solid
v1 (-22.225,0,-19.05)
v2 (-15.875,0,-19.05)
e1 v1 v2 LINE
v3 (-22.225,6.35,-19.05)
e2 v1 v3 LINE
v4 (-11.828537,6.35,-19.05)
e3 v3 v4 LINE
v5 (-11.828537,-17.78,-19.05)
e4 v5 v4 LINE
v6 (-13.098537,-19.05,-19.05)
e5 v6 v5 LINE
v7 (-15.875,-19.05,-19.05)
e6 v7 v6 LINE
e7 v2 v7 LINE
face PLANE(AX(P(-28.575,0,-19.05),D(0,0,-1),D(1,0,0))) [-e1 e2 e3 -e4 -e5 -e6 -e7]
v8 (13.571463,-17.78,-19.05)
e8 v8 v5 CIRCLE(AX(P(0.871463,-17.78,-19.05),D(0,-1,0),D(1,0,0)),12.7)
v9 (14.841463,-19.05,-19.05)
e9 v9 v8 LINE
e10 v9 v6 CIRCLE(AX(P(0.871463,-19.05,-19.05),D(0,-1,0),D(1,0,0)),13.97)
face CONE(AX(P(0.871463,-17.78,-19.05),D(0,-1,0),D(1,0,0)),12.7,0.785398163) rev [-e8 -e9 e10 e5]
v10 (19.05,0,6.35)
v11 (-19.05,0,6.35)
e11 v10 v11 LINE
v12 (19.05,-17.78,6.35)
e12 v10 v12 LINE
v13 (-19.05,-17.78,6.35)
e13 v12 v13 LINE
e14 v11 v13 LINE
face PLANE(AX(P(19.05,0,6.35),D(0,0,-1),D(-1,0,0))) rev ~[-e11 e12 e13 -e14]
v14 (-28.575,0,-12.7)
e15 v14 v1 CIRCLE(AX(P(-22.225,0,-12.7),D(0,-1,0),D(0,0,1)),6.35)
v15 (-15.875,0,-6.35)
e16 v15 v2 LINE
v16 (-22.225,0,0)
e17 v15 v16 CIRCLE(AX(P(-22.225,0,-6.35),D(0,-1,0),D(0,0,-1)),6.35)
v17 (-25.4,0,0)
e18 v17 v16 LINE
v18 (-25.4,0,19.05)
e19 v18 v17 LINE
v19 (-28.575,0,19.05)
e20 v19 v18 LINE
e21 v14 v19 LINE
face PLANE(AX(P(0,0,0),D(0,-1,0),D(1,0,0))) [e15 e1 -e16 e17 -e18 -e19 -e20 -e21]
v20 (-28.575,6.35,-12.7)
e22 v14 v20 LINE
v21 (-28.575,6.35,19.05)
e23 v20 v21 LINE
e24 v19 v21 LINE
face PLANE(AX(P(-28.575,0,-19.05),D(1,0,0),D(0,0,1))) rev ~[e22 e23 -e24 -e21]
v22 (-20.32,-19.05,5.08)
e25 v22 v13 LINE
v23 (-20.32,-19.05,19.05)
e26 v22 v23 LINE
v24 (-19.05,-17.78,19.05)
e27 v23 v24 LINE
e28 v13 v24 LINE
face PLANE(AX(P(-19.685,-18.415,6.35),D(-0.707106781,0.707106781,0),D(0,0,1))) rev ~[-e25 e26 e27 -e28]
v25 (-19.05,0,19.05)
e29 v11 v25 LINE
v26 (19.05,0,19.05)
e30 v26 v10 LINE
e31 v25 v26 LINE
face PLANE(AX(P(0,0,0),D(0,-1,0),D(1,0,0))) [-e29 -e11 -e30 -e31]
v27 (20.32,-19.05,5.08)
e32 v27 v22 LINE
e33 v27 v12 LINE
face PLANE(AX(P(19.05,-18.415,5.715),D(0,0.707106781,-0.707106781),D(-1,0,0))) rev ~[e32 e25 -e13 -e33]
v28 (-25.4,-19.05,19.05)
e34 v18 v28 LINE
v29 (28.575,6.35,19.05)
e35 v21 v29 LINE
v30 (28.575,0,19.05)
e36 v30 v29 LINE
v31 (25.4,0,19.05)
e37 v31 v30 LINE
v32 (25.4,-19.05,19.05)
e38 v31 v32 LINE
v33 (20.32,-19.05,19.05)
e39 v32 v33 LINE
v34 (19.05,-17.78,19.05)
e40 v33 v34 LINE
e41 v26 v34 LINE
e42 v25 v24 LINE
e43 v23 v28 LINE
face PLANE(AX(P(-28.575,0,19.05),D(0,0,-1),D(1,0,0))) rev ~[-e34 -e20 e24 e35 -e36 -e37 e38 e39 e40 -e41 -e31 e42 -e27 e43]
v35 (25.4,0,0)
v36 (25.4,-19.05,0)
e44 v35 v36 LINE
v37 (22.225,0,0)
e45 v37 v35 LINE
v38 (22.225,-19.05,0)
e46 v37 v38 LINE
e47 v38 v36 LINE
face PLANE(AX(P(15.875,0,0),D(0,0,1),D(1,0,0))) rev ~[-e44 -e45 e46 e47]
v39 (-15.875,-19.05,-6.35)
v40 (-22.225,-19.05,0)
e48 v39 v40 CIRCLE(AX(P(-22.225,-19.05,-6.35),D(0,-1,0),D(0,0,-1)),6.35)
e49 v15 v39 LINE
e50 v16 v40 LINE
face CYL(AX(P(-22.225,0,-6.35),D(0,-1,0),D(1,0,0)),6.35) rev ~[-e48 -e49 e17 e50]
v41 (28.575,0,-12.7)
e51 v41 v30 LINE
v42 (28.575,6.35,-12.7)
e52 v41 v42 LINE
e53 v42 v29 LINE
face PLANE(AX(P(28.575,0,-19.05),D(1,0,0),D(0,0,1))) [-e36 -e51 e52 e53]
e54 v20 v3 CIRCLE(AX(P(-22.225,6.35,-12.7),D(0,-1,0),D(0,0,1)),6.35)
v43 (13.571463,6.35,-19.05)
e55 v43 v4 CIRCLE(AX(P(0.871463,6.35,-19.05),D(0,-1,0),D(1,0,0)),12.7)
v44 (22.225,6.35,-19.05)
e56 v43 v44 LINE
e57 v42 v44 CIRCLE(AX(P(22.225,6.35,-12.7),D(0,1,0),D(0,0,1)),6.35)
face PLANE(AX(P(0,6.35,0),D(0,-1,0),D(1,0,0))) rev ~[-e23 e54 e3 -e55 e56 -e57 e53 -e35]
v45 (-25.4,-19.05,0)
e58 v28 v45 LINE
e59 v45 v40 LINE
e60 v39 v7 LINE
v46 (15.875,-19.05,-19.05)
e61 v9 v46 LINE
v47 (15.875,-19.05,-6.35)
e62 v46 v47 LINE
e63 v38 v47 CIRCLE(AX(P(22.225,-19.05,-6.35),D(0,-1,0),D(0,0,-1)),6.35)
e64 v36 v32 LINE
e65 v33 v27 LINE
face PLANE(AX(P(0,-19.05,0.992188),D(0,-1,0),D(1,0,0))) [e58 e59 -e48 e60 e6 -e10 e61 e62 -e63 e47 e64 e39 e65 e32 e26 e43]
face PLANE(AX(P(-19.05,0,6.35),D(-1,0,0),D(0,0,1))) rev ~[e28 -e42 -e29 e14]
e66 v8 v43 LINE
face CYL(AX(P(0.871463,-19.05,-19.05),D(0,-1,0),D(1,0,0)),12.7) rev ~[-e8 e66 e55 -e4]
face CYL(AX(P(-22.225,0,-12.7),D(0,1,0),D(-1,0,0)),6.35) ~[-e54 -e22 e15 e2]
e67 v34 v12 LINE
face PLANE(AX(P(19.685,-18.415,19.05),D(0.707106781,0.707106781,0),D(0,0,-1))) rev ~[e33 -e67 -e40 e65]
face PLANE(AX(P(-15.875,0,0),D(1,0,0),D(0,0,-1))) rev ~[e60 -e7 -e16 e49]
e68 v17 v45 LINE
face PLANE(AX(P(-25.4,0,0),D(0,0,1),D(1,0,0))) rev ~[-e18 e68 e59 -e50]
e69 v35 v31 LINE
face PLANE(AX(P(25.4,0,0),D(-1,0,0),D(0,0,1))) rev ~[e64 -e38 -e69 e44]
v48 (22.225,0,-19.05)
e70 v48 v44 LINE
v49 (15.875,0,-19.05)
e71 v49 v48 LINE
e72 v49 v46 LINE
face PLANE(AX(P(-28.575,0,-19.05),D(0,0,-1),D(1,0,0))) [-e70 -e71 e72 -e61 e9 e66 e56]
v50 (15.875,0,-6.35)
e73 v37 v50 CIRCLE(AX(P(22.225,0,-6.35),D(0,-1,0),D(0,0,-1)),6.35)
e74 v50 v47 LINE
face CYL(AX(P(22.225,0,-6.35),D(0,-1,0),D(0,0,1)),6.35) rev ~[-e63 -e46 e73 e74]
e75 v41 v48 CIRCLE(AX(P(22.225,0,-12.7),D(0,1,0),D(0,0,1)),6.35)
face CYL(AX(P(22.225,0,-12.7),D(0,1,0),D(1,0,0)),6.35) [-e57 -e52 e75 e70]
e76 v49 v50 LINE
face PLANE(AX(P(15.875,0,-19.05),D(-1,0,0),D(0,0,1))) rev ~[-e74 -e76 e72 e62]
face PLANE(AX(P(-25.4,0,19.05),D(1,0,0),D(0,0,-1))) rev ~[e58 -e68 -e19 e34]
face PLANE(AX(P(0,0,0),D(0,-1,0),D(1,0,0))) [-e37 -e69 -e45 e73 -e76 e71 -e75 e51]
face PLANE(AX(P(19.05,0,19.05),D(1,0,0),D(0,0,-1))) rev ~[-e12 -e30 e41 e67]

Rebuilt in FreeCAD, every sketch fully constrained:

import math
import FreeCAD as App
import Part
import Sketcher
Q = App.Units.Quantity


def edges_at(feature, points):
    """Names of the edges that pass closest to the given points."""
    edges = feature.Shape.Edges
    near = lambda p: min(range(len(edges)), key=lambda i: edges[i].distToShape(Part.Vertex(*p))[0])
    return sorted({f"Edge{near(p) + 1}" for p in points})

doc = App.newDocument("Part")
body = doc.addObject("PartDesign::Body", "Body")

sketch1 = body.newObject("Sketcher::SketchObject", "Sketch")
sketch1.AttachmentSupport = (doc.getObject("XZ_Plane"), [""])
sketch1.MapMode = "FlatFace"
sketch1.addGeometry([
    Part.LineSegment(App.Vector(-28.575, 19.05, 0), App.Vector(-28.575, -19.05, 0)),
    Part.LineSegment(App.Vector(-28.575, -19.05, 0), App.Vector(28.575, -19.05, 0)),
    Part.LineSegment(App.Vector(28.575, -19.05, 0), App.Vector(28.575, 19.05, 0)),
    Part.LineSegment(App.Vector(28.575, 19.05, 0), App.Vector(-28.575, 19.05, 0)),
], False)
sketch1.addConstraint([
    Sketcher.Constraint("Coincident", 0, 2, 1, 1),
    Sketcher.Constraint("Coincident", 1, 2, 2, 1),
    Sketcher.Constraint("Coincident", 2, 2, 3, 1),
    Sketcher.Constraint("Coincident", 3, 2, 0, 1),
    Sketcher.Constraint("Vertical", 0),
    Sketcher.Constraint("Horizontal", 1),
    Sketcher.Constraint("Vertical", 2),
    Sketcher.Constraint("Horizontal", 3),
    Sketcher.Constraint("Symmetric", 0, 2, 2, 2, -1, 1),
    Sketcher.Constraint("DistanceY", 0, 2, 0, 1, Q("1.5 in")),
    Sketcher.Constraint("DistanceX", 1, 1, 1, 2, Q("2.25 in")),
])
pad1 = body.newObject("PartDesign::Pad", "Pad")
pad1.Profile = sketch1
pad1.Length = Q("0.25 in")
pad1.Reversed = True

sketch2 = body.newObject("Sketcher::SketchObject", "Sketch001")
sketch2.AttachmentSupport = (doc.getObject("XZ_Plane"), [""])
sketch2.MapMode = "FlatFace"
sketch2.addGeometry([
    Part.LineSegment(App.Vector(-19.05, 19.05, 0), App.Vector(-25.4, 19.05, 0)),
    Part.LineSegment(App.Vector(-25.4, 19.05, 0), App.Vector(-25.4, 0, 0)),
    Part.LineSegment(App.Vector(-25.4, 0, 0), App.Vector(-15.875, 0, 0)),
    Part.LineSegment(App.Vector(-15.875, 0, 0), App.Vector(-15.875, -19.05, 0)),
    Part.LineSegment(App.Vector(-15.875, -19.05, 0), App.Vector(15.875, -19.05, 0)),
    Part.LineSegment(App.Vector(15.875, -19.05, 0), App.Vector(15.875, 0, 0)),
    Part.LineSegment(App.Vector(15.875, 0, 0), App.Vector(25.4, 0, 0)),
    Part.LineSegment(App.Vector(25.4, 0, 0), App.Vector(25.4, 19.05, 0)),
    Part.LineSegment(App.Vector(25.4, 19.05, 0), App.Vector(19.05, 19.05, 0)),
    Part.LineSegment(App.Vector(19.05, 19.05, 0), App.Vector(19.05, 6.35, 0)),
    Part.LineSegment(App.Vector(19.05, 6.35, 0), App.Vector(-19.05, 6.35, 0)),
    Part.LineSegment(App.Vector(-19.05, 6.35, 0), App.Vector(-19.05, 19.05, 0)),
], False)
sketch2.addConstraint([
    Sketcher.Constraint("Coincident", 0, 2, 1, 1),
    Sketcher.Constraint("Coincident", 1, 2, 2, 1),
    Sketcher.Constraint("Coincident", 2, 2, 3, 1),
    Sketcher.Constraint("Coincident", 3, 2, 4, 1),
    Sketcher.Constraint("Coincident", 4, 2, 5, 1),
    Sketcher.Constraint("Coincident", 5, 2, 6, 1),
    Sketcher.Constraint("Coincident", 6, 2, 7, 1),
    Sketcher.Constraint("Coincident", 7, 2, 8, 1),
    Sketcher.Constraint("Coincident", 8, 2, 9, 1),
    Sketcher.Constraint("Coincident", 9, 2, 10, 1),
    Sketcher.Constraint("Coincident", 10, 2, 11, 1),
    Sketcher.Constraint("Coincident", 11, 2, 0, 1),
    Sketcher.Constraint("Horizontal", 0),
    Sketcher.Constraint("Vertical", 1),
    Sketcher.Constraint("Horizontal", 2),
    Sketcher.Constraint("Vertical", 3),
    Sketcher.Constraint("Horizontal", 4),
    Sketcher.Constraint("Vertical", 5),
    Sketcher.Constraint("Horizontal", 6),
    Sketcher.Constraint("Vertical", 7),
    Sketcher.Constraint("Horizontal", 8),
    Sketcher.Constraint("Vertical", 9),
    Sketcher.Constraint("Horizontal", 10),
    Sketcher.Constraint("Vertical", 11),
    Sketcher.Constraint("Symmetric", 2, 2, 5, 2, -1, 1),
    Sketcher.Constraint("Symmetric", 1, 2, 6, 2, -2),
    Sketcher.Constraint("Symmetric", 8, 2, 11, 2, -2),
    Sketcher.Constraint("Equal", 1, 3),
    Sketcher.Constraint("DistanceX", 10, 2, 10, 1, Q("1.5 in")),
    Sketcher.Constraint("DistanceY", 9, 2, 9, 1, Q("0.5 in")),
    Sketcher.Constraint("DistanceX", 0, 2, -1, 1, Q("1 in")),
    Sketcher.Constraint("DistanceY", 4, 2, 9, 2, Q("1 in")),
    Sketcher.Constraint("DistanceX", 4, 1, 4, 2, Q("1.25 in")),
])
pad2 = body.newObject("PartDesign::Pad", "Pad001")
pad2.Profile = sketch2
pad2.Length = Q("0.75 in")

sketch3 = body.newObject("Sketcher::SketchObject", "Sketch002")
sketch3.AttachmentSupport = (doc.getObject("XZ_Plane"), [""])
sketch3.MapMode = "FlatFace"
sketch3.AttachmentOffset = App.Placement(App.Vector(0, 0, 0.75 * 25.4), App.Rotation())
sketch3.addGeometry([
    Part.LineSegment(App.Vector(-11.828537, -19.05, 0), App.Vector(13.571463, -19.05, 0)),
    Part.ArcOfCircle(Part.Circle(App.Vector(0.871463, -19.05, 0), App.Vector(0, 0, 1), 12.7), math.radians(0), math.radians(180)),
], False)
sketch3.addConstraint([
    Sketcher.Constraint("Coincident", 0, 1, 1, 2),
    Sketcher.Constraint("Coincident", 1, 1, 0, 2),
    Sketcher.Constraint("Horizontal", 0),
    Sketcher.Constraint("Horizontal", 1, 3, 0, 1),
    Sketcher.Constraint("Radius", 1, Q("0.5 in")),
    Sketcher.Constraint("DistanceY", 1, 3, -1, 1, Q("0.75 in")),
    Sketcher.Constraint("DistanceX", -1, 1, 1, 3, 0.871463),
])
pocket1 = body.newObject("PartDesign::Pocket", "Pocket")
pocket1.Profile = sketch3
pocket1.Type = "ThroughAll"
doc.recompute()

fillet = body.newObject("PartDesign::Fillet", "Fillet")
fillet.Base = (pocket1, edges_at(pocket1, [
    (-28.575, 3.175, -19.05),
    (28.575, 3.175, -19.05),
    (15.875, -9.525, 0),
    (-15.875, -9.525, 0),
]))
fillet.Radius = Q("0.25 in")
doc.recompute()

chamfer = body.newObject("PartDesign::Chamfer", "Chamfer")
chamfer.Base = (fillet, edges_at(fillet, [
    (0.871, -19.05, -6.35),
    (0, -19.05, 6.35),
    (-19.05, -19.05, 12.7),
    (19.05, -19.05, 12.7),
]))
chamfer.Size = Q("0.05 in")

doc.recompute()
